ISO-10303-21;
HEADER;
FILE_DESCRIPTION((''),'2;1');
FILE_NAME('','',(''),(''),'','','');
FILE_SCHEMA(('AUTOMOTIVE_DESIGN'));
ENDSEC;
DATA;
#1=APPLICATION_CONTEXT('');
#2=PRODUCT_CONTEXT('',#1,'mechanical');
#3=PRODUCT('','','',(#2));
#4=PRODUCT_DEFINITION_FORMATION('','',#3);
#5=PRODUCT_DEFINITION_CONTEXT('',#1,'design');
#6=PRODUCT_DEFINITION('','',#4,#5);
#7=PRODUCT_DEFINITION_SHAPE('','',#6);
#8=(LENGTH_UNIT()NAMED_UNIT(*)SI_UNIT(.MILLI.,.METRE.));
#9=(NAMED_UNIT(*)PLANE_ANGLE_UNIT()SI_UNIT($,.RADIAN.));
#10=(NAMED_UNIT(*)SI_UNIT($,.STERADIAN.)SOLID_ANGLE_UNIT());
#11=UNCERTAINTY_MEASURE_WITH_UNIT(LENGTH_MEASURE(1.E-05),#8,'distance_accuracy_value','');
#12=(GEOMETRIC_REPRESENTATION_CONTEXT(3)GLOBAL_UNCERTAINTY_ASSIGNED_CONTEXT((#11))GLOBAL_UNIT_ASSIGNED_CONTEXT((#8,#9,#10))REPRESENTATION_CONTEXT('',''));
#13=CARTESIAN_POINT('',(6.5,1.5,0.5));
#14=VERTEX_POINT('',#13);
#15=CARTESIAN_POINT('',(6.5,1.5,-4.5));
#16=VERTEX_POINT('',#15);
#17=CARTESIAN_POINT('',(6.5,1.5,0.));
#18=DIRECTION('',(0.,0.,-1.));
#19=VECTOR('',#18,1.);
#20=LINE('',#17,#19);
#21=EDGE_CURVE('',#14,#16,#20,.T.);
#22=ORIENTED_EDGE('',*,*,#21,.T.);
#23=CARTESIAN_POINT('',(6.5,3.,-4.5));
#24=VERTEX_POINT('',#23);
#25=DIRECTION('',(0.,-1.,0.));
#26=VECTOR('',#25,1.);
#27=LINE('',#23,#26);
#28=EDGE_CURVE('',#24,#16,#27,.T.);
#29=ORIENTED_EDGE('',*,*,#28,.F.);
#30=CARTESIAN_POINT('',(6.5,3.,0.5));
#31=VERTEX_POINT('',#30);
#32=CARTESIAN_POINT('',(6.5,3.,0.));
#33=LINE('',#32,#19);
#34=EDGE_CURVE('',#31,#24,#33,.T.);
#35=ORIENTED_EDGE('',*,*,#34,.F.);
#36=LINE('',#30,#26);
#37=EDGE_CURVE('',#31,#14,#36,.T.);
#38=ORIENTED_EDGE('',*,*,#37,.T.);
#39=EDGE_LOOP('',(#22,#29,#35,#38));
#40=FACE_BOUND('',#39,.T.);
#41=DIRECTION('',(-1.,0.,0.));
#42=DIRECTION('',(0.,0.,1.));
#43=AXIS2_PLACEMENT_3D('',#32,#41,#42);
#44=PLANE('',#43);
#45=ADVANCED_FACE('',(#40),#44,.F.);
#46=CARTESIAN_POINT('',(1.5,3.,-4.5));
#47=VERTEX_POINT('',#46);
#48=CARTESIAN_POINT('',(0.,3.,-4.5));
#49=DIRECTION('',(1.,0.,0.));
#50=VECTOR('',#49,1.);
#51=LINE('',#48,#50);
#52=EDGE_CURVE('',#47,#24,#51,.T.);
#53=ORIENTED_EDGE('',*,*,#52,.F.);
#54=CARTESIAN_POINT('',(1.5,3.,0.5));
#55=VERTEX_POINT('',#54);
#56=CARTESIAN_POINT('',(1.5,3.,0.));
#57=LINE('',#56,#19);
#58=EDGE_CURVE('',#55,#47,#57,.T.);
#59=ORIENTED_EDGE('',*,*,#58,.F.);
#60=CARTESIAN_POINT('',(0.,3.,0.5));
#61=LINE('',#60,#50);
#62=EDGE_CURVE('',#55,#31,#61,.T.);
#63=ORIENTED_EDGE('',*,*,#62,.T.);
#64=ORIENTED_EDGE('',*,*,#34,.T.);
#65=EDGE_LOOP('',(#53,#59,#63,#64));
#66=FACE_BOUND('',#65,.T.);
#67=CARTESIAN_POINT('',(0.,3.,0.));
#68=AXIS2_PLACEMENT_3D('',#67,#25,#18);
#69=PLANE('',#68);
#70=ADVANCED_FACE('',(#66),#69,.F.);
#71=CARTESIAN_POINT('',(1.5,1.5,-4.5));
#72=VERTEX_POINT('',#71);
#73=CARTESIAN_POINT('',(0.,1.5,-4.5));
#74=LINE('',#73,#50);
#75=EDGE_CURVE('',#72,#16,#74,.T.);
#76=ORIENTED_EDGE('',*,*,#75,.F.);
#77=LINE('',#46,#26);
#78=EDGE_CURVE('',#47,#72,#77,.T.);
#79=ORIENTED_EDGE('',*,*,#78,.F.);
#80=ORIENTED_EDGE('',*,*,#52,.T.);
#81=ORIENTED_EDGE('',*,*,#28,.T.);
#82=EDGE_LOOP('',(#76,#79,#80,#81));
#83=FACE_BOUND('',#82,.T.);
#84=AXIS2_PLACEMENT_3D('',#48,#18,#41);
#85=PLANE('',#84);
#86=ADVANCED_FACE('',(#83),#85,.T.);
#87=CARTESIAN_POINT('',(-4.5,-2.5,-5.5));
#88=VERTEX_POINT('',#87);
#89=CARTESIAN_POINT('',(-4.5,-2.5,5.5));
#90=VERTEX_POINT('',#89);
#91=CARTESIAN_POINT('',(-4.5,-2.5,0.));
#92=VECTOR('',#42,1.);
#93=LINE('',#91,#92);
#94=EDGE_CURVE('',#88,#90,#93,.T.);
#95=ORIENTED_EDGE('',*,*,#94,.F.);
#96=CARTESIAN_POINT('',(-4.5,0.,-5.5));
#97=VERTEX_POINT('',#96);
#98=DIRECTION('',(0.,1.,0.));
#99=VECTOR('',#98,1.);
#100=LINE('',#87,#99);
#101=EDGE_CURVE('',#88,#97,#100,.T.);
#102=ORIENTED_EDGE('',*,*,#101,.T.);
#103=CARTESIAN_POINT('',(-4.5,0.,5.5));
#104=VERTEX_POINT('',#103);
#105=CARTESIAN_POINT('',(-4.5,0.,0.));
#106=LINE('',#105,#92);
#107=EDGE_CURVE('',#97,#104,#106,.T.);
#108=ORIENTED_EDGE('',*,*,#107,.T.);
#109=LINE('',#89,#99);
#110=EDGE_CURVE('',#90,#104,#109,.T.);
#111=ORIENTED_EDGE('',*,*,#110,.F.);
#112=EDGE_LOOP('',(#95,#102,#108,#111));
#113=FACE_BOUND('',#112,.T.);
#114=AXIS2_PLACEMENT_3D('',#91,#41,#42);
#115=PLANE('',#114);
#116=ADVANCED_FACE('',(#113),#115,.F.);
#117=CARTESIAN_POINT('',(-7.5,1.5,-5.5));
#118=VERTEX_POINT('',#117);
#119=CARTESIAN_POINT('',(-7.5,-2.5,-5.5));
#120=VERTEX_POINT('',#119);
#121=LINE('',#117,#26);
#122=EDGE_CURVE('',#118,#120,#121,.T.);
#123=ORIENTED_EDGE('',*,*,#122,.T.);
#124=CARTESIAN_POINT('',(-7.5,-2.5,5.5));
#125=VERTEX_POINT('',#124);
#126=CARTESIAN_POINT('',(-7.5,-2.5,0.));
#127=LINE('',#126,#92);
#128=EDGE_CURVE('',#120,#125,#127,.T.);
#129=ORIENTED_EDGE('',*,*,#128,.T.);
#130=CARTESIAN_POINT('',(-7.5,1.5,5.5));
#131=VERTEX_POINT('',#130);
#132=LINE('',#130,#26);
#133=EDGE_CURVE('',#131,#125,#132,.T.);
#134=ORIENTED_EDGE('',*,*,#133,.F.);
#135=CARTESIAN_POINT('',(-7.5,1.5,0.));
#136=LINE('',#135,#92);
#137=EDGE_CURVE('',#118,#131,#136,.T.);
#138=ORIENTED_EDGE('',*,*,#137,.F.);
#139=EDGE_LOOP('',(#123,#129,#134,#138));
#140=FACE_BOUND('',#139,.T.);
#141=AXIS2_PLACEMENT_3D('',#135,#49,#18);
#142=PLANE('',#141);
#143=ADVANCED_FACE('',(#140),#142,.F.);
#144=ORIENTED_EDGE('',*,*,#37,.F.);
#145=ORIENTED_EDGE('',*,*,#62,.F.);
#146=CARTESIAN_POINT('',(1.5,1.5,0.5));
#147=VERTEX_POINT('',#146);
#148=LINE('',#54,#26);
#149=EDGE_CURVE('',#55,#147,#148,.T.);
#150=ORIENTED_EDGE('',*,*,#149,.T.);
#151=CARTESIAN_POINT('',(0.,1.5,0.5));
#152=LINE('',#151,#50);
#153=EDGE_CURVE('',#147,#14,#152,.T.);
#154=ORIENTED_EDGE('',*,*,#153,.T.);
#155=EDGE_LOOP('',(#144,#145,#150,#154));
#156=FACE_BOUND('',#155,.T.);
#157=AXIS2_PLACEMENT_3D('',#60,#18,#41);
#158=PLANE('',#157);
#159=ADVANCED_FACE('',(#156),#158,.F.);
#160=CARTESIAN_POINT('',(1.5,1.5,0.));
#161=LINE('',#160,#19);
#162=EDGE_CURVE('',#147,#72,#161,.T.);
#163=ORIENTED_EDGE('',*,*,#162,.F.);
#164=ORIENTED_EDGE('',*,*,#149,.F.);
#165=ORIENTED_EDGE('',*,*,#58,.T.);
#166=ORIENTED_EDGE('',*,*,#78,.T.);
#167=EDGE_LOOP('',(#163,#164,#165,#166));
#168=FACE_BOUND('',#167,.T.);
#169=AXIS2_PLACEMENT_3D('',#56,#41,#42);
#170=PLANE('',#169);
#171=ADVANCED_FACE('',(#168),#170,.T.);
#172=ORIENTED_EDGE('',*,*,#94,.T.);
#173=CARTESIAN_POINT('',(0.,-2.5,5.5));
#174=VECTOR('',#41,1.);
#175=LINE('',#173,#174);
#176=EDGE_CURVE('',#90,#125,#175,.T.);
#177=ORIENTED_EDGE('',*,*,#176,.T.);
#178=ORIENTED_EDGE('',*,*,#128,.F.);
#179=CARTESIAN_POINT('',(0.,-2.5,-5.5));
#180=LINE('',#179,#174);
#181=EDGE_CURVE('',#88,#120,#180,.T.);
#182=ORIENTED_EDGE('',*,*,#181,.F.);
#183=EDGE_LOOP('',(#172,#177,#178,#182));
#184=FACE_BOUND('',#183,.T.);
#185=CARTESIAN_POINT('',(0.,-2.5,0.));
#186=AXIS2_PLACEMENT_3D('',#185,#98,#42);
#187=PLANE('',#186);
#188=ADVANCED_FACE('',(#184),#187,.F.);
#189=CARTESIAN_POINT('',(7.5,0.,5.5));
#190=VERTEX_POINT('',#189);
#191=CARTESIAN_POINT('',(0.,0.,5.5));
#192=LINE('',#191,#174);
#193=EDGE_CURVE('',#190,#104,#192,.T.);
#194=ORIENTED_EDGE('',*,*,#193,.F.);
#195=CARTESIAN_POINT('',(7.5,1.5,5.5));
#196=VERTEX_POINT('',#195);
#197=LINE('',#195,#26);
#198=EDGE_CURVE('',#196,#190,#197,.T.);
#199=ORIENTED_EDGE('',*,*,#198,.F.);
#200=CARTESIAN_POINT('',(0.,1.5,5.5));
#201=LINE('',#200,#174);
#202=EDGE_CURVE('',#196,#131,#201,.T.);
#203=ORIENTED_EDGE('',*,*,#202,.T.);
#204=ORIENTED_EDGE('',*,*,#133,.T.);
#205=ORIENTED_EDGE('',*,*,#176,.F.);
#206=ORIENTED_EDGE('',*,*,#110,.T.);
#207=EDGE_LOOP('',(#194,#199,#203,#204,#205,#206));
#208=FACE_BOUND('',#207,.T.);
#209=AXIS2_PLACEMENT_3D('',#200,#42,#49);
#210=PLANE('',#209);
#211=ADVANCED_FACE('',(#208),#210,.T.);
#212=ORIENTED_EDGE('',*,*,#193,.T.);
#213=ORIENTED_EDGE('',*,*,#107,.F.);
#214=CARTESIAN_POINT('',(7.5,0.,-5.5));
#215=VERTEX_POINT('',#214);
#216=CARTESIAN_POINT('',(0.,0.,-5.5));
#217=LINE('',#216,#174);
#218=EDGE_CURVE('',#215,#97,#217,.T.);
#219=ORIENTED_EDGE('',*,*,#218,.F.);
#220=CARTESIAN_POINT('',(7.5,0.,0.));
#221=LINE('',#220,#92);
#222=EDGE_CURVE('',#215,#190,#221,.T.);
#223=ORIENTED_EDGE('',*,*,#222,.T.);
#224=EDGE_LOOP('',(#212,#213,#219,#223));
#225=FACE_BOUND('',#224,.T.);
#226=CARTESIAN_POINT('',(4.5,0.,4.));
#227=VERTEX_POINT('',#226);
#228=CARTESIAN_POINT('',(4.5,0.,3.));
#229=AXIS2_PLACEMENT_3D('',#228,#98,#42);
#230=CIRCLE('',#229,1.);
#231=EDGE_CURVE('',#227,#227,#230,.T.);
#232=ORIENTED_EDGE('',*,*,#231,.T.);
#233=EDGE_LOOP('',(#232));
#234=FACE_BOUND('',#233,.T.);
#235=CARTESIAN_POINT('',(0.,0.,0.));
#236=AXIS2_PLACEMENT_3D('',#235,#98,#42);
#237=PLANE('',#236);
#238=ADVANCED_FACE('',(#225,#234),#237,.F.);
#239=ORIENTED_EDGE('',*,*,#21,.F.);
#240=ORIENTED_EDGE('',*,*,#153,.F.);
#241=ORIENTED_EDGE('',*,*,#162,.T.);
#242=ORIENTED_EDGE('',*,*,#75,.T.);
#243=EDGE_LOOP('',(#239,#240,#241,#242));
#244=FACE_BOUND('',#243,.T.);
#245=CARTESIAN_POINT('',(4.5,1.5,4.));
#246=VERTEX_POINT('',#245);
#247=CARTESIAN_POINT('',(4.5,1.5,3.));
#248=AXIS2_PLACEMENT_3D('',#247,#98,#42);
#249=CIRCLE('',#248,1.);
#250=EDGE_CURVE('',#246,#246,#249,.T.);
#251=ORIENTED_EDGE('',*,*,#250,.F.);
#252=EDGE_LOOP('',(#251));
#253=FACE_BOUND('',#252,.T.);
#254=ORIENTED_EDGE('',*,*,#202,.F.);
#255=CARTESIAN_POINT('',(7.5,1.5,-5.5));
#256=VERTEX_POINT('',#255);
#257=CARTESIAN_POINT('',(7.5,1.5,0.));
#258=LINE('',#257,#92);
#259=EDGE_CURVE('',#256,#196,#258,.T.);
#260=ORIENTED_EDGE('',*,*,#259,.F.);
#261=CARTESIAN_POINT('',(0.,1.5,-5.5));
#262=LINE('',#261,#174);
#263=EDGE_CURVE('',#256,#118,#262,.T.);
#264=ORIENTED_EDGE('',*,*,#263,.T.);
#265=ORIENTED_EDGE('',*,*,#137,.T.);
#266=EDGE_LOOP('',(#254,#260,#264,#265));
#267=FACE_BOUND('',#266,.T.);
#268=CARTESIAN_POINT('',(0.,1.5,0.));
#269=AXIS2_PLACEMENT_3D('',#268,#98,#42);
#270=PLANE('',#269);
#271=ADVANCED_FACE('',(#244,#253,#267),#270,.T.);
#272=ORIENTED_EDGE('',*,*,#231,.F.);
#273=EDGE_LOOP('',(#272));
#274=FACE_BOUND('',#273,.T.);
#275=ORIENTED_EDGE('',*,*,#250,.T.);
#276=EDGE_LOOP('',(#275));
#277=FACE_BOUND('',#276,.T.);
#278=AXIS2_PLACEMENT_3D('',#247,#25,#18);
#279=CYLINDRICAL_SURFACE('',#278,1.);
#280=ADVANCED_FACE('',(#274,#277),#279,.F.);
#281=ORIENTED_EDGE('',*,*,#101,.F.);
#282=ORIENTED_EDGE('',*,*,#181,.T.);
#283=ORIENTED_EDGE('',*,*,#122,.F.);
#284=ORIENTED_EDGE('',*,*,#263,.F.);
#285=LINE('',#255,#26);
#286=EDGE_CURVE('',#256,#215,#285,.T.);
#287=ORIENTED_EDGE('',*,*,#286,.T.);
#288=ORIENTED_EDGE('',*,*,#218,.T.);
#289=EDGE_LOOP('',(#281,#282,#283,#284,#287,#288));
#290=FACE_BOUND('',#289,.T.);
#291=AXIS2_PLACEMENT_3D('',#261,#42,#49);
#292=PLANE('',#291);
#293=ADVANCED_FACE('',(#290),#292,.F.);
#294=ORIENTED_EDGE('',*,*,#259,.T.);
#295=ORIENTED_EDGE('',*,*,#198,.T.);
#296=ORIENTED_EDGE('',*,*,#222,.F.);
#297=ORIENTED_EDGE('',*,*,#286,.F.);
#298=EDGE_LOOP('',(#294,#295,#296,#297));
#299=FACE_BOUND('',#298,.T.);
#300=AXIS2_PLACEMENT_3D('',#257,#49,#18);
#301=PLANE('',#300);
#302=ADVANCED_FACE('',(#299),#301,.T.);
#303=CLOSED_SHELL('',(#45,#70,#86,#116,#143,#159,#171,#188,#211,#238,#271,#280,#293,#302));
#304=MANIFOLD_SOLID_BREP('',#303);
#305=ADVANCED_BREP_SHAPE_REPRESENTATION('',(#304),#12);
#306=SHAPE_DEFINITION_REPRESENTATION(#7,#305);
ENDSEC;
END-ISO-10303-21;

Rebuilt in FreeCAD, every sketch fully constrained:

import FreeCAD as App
import Part
import Sketcher


def add_polygon(sketch, points):
    """Adds a closed chain of lines whose ends are joined by coincident constraints."""
    first, n = sketch.GeometryCount, len(points)
    for a, b in zip(points, points[1:] + points[:1]):
        sketch.addGeometry(Part.LineSegment(App.Vector(*a, 0), App.Vector(*b, 0)), False)
    for i in range(n):
        sketch.addConstraint(Sketcher.Constraint("Coincident", first + i, 2, first + (i + 1) % n, 1))

doc = App.newDocument("Part")
body = doc.addObject("PartDesign::Body", "Body")

sketch1 = doc.addObject("Sketcher::SketchObject", "Sketch")
body.addObject(sketch1)
sketch1.AttachmentSupport = (doc.XZ_Plane, [""])
sketch1.MapMode = "FlatFace"
add_polygon(sketch1, [(7.5, -5.5), (-7.5, -5.5), (-7.5, 5.5), (7.5, 5.5)])
sketch1.addGeometry(Part.Circle(App.Vector(4.5, 3, 0), App.Vector(0, 0, 1), 1), False)
sketch1.addConstraint(Sketcher.Constraint("Horizontal", 0))
sketch1.addConstraint(Sketcher.Constraint("Vertical", 1))
sketch1.addConstraint(Sketcher.Constraint("Horizontal", 2))
sketch1.addConstraint(Sketcher.Constraint("Vertical", 3))
sketch1.addConstraint(Sketcher.Constraint("Symmetric", 0, 2, 2, 2, -1, 1))
sketch1.addConstraint(Sketcher.Constraint("Diameter", 4, 2.0))
sketch1.addConstraint(Sketcher.Constraint("DistanceX", 0, 2, 0, 1, 15.0))
sketch1.addConstraint(Sketcher.Constraint("DistanceY", 1, 1, 1, 2, 11.0))
sketch1.addConstraint(Sketcher.Constraint("DistanceY", -1, 1, 4, 3, 3.0))
sketch1.addConstraint(Sketcher.Constraint("DistanceX", 0, 2, 4, 3, 12.0))
pad1 = doc.addObject("PartDesign::Pad", "Pad")
body.addObject(pad1)
pad1.Profile = sketch1
pad1.Length = 1.5
pad1.Reversed = True

sketch2 = doc.addObject("Sketcher::SketchObject", "Sketch001")
body.addObject(sketch2)
sketch2.AttachmentSupport = (doc.XZ_Plane, [""])
sketch2.MapMode = "FlatFace"
add_polygon(sketch2, [(-7.5, -5.5), (-7.5, 5.5), (-4.5, 5.5), (-4.5, -5.5)])
sketch2.addConstraint(Sketcher.Constraint("Vertical", 0))
sketch2.addConstraint(Sketcher.Constraint("Horizontal", 1))
sketch2.addConstraint(Sketcher.Constraint("Vertical", 2))
sketch2.addConstraint(Sketcher.Constraint("Horizontal", 3))
sketch2.addConstraint(Sketcher.Constraint("DistanceX", 1, 1, 1, 2, 3.0))
sketch2.addConstraint(Sketcher.Constraint("DistanceY", 0, 1, 0, 2, 11.0))
sketch2.addConstraint(Sketcher.Constraint("DistanceX", 0, 2, -1, 1, 7.5))
sketch2.addConstraint(Sketcher.Constraint("DistanceY", -1, 1, 0, 2, 5.5))
pad2 = doc.addObject("PartDesign::Pad", "Pad001")
body.addObject(pad2)
pad2.Profile = sketch2
pad2.Length = 2.5

sketch3 = doc.addObject("Sketcher::SketchObject", "Sketch002")
body.addObject(sketch3)
sketch3.AttachmentSupport = (doc.XZ_Plane, [""])
sketch3.MapMode = "FlatFace"
sketch3.AttachmentOffset = App.Placement(App.Vector(0, 0, -1.5), App.Rotation())
add_polygon(sketch3, [(2, -4), (2, 0), (6, 0), (6, -4)])
sketch3.addConstraint(Sketcher.Constraint("Vertical", 0))
sketch3.addConstraint(Sketcher.Constraint("Horizontal", 1))
sketch3.addConstraint(Sketcher.Constraint("Vertical", 2))
sketch3.addConstraint(Sketcher.Constraint("Horizontal", 3))
sketch3.addConstraint(Sketcher.Constraint("Equal", 3, 0))
sketch3.addConstraint(Sketcher.Constraint("DistanceX", 1, 1, 1, 2, 5.0))
sketch3.addConstraint(Sketcher.Constraint("DistanceX", -1, 1, 0, 2, 1.5))
sketch3.addConstraint(Sketcher.Constraint("DistanceY", -1, 1, 0, 2, 0.5))
pad3 = doc.addObject("PartDesign::Pad", "Pad002")
body.addObject(pad3)
pad3.Profile = sketch3
pad3.Length = 1.5
pad3.Reversed = True

doc.recompute()
